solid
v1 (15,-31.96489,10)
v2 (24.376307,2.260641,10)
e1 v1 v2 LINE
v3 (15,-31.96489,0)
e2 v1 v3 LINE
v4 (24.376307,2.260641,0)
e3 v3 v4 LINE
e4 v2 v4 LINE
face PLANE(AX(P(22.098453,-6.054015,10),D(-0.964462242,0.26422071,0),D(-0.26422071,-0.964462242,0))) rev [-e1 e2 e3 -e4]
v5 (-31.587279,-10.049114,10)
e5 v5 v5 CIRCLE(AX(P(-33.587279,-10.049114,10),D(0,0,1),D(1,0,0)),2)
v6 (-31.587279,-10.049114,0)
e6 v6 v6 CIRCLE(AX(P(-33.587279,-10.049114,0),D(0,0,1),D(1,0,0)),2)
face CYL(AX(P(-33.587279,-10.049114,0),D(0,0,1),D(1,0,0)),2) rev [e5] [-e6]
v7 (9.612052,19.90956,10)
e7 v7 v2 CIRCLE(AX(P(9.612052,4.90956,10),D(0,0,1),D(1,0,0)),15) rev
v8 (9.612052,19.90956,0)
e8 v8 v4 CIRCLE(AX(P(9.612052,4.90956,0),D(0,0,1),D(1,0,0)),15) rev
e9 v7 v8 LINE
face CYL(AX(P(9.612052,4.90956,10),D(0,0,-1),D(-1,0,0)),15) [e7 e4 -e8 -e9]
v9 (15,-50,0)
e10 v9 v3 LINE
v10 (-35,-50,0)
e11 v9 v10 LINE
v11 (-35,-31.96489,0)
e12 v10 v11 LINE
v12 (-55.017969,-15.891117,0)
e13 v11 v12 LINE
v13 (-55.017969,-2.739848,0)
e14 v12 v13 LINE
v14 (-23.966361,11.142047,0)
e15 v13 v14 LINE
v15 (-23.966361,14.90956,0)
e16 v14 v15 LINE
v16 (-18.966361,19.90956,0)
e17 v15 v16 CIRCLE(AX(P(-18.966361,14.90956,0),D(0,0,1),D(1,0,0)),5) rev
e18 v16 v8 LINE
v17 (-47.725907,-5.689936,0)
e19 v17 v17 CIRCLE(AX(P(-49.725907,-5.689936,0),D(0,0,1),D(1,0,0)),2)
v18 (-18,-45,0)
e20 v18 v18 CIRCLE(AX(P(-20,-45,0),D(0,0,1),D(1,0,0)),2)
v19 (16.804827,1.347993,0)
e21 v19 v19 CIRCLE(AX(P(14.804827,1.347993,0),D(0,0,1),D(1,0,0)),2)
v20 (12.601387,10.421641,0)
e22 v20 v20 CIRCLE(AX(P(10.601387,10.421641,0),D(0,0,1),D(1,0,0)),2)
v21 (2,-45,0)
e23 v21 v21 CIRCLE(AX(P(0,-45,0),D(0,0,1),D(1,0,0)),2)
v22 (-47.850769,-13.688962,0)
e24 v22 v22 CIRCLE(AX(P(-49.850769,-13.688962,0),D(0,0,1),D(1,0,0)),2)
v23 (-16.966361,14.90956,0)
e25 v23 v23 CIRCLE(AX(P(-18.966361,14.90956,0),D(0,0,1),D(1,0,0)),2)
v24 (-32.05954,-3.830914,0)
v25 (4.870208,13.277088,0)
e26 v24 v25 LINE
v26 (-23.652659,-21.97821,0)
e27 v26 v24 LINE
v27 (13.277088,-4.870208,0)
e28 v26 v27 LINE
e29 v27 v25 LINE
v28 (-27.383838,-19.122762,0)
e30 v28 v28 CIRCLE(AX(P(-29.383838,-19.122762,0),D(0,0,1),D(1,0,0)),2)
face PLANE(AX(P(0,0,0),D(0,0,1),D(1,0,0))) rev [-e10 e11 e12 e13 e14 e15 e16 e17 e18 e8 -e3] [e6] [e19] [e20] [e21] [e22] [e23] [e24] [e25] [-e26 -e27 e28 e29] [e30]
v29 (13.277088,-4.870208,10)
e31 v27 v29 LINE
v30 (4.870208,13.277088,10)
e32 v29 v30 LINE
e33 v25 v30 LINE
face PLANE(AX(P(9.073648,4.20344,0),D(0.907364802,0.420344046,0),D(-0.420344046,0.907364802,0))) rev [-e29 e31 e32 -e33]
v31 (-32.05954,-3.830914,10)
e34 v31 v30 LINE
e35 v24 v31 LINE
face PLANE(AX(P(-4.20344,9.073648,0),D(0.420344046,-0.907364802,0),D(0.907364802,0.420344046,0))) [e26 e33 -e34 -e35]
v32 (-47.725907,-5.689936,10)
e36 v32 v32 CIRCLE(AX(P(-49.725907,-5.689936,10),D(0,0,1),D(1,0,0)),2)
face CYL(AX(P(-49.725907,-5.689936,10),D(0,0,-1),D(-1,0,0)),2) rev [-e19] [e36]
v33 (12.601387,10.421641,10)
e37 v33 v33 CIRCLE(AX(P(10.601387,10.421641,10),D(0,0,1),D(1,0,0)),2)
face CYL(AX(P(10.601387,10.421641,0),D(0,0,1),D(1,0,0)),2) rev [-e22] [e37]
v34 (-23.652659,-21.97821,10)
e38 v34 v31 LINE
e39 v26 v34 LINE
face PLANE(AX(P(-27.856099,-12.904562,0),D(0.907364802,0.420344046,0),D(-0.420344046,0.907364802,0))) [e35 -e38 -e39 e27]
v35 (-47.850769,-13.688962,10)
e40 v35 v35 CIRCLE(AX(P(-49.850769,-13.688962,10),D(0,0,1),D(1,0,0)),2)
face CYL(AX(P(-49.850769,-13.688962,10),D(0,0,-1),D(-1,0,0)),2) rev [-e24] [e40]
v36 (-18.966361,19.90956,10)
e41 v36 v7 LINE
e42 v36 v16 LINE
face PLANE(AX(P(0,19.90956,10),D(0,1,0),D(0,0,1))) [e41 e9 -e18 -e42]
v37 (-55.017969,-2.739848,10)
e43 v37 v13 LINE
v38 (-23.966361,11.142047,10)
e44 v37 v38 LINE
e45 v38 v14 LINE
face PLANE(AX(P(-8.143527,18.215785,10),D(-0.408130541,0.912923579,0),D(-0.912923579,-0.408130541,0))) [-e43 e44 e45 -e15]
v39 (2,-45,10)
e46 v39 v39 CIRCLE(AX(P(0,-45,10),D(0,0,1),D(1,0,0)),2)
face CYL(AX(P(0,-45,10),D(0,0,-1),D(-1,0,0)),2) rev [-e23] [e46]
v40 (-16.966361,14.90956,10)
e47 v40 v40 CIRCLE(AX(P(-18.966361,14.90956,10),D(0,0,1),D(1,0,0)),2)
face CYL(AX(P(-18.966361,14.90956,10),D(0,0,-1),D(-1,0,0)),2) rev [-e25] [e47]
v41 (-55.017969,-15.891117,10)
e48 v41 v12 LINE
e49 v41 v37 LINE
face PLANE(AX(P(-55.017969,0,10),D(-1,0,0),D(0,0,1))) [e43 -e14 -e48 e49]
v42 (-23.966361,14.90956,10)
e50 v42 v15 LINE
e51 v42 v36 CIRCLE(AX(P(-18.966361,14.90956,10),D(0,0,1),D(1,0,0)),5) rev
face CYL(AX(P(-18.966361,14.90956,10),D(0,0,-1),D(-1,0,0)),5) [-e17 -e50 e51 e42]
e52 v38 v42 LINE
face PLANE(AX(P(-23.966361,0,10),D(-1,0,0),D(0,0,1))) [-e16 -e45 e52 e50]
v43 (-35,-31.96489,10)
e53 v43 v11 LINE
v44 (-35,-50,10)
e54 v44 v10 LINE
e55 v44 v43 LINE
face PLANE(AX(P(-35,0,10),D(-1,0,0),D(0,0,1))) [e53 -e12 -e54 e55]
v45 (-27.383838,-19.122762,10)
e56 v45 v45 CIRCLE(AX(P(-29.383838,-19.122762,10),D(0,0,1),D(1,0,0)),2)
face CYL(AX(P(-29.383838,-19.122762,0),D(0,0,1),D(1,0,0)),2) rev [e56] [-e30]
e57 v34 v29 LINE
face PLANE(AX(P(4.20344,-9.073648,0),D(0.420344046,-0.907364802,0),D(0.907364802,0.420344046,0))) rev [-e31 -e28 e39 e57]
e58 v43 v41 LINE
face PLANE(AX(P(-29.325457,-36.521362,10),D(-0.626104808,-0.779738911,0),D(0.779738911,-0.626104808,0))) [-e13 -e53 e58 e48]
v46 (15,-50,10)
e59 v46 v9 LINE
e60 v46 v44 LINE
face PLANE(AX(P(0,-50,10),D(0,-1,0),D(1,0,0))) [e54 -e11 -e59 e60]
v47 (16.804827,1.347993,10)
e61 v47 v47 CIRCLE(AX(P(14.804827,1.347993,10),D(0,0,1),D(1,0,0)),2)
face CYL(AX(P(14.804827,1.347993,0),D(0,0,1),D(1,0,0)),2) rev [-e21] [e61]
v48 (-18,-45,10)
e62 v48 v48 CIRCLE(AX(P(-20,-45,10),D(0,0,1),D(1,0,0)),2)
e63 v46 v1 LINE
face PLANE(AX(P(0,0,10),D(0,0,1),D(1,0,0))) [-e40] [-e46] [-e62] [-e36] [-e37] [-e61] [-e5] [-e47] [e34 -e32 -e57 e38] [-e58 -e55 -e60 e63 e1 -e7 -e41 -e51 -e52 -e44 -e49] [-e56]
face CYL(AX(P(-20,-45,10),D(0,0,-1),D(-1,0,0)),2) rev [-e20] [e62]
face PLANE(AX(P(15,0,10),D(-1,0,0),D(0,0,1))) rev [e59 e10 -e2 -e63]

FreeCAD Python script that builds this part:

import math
import FreeCAD as App
import Part
import Sketcher
Q = App.Units.Quantity

doc = App.newDocument("Part")
body = doc.addObject("PartDesign::Body", "Body")

sketch1 = body.newObject("Sketcher::SketchObject", "Sketch")
sketch1.AttachmentSupport = (doc.getObject("XY_Plane"), [""])
sketch1.MapMode = "FlatFace"
sketch1.addGeometry([
    Part.LineSegment(App.Vector(-35, -50, 0), App.Vector(15, -50, 0)),
    Part.LineSegment(App.Vector(15, -50, 0), App.Vector(15, -32, 0)),
    Part.LineSegment(App.Vector(15, -32, 0), App.Vector(24.4, 2.3, 0)),
    Part.ArcOfCircle(Part.Circle(App.Vector(9.6, 4.9, 0), App.Vector(0, 0, 1), 15), math.radians(-10), math.radians(90)),
    Part.LineSegment(App.Vector(9.6, 19.9, 0), App.Vector(-19, 19.9, 0)),
    Part.ArcOfCircle(Part.Circle(App.Vector(-19, 14.9, 0), App.Vector(0, 0, 1), 5), math.radians(90), math.radians(180)),
    Part.LineSegment(App.Vector(-24, 14.9, 0), App.Vector(-24, 11.1, 0)),
    Part.LineSegment(App.Vector(-24, 11.1, 0), App.Vector(-55, -2.7, 0)),
    Part.LineSegment(App.Vector(-55, -2.7, 0), App.Vector(-55, -15.9, 0)),
    Part.LineSegment(App.Vector(-55, -15.9, 0), App.Vector(-35, -32, 0)),
    Part.LineSegment(App.Vector(-35, -32, 0), App.Vector(-35, -50, 0)),
    Part.Circle(App.Vector(0, -45, 0), App.Vector(0, 0, 1), 2),
    Part.Circle(App.Vector(-20, -45, 0), App.Vector(0, 0, 1), 2),
    Part.Circle(App.Vector(0, 0, 0), App.Vector(0, 0, 1), 2.5),
    Part.Circle(App.Vector(-19, 14.9, 0), App.Vector(0, 0, 1), 2),
    Part.Circle(App.Vector(-49.9, -13.7, 0), App.Vector(0, 0, 1), 2),
    Part.Circle(App.Vector(-49.7, -5.7, 0), App.Vector(0, 0, 1), 2),
], False)
sketch1.addConstraint([
    Sketcher.Constraint("Coincident", 0, 2, 1, 1),
    Sketcher.Constraint("Coincident", 1, 2, 2, 1),
    Sketcher.Constraint("Coincident", 2, 2, 3, 1),
    Sketcher.Constraint("Tangent", 3, 2, 4, 1),
    Sketcher.Constraint("Tangent", 4, 2, 5, 1),
    Sketcher.Constraint("Tangent", 5, 2, 6, 1),
    Sketcher.Constraint("Coincident", 6, 2, 7, 1),
    Sketcher.Constraint("Coincident", 7, 2, 8, 1),
    Sketcher.Constraint("Coincident", 8, 2, 9, 1),
    Sketcher.Constraint("Coincident", 9, 2, 10, 1),
    Sketcher.Constraint("Coincident", 10, 2, 0, 1),
    Sketcher.Constraint("Horizontal", 0),
    Sketcher.Constraint("Vertical", 1),
    Sketcher.Constraint("Horizontal", 4),
    Sketcher.Constraint("Vertical", 6),
    Sketcher.Constraint("Vertical", 8),
    Sketcher.Constraint("Vertical", 10),
    Sketcher.Constraint("Coincident", 13, 3, -1, 1),
    Sketcher.Constraint("Coincident", 14, 3, 5, 3),
    Sketcher.Constraint("Equal", 11, 12),
    Sketcher.Constraint("Equal", 12, 14),
    Sketcher.Constraint("Equal", 14, 15),
    Sketcher.Constraint("Equal", 15, 16),
    Sketcher.Constraint("PointOnObject", 11, 3, -2),
    Sketcher.Constraint("Horizontal", 11, 3, 12, 3),
    Sketcher.Constraint("Horizontal", 1, 2, 9, 2),
    Sketcher.Constraint("Diameter", 11, Q("4 mm")),
    Sketcher.Constraint("Diameter", 13, Q("5 mm")),
    Sketcher.Constraint("Radius", 3, Q("15 mm")),
    Sketcher.Constraint("Radius", 5, Q("5 mm")),
    Sketcher.Constraint("DistanceX", 0, 1, 0, 2, Q("50 mm")),
    Sketcher.Constraint("DistanceY", 11, 3, -1, 1, Q("45 mm")),
    Sketcher.Constraint("DistanceX", 12, 3, -1, 1, Q("20 mm")),
    Sketcher.Constraint("DistanceX", -1, 1, 0, 2, Q("15 mm")),
    Sketcher.Constraint("DistanceY", 0, 2, -1, 1, Q("50 mm")),
    Sketcher.Constraint("DistanceY", 1, 1, 1, 2, Q("18.03511 mm")),
    Sketcher.Constraint("DistanceY", 8, 2, 8, 1, Q("13.151269 mm")),
    Sketcher.Constraint("DistanceX", 7, 2, 15, 3, Q("5.1672 mm")),
    Sketcher.Constraint("Distance", 7, Q("34.01337 mm")),
    Sketcher.Constraint("DistanceX", 4, 2, 4, 1, Q("28.578413 mm")),
    Sketcher.Constraint("DistanceY", 6, 2, 6, 1, Q("3.767513 mm")),
    Sketcher.Constraint("DistanceY", -1, 1, 3, 3, Q("4.90956 mm")),
    Sketcher.Constraint("DistanceX", 5, 3, -1, 1, Q("18.966361 mm")),
    Sketcher.Constraint("DistanceX", 15, 3, -1, 1, Q("49.850769 mm")),
    Sketcher.Constraint("DistanceY", 15, 3, -1, 1, Q("13.688962 mm")),
    Sketcher.Constraint("DistanceY", -1, 1, 2, 2, Q("2.260641 mm")),
    Sketcher.Constraint("DistanceX", 15, 3, 16, 3, Q("0.124862 mm")),
    Sketcher.Constraint("DistanceY", 16, 3, 7, 2, Q("2.950088 mm")),
])
pad1 = body.newObject("PartDesign::Pad", "Pad")
pad1.Profile = sketch1
pad1.Length = 10

sketch2 = body.newObject("Sketcher::SketchObject", "Sketch001")
sketch2.AttachmentSupport = (doc.getObject("XY_Plane"), [""])
sketch2.MapMode = "FlatFace"
sketch2.AttachmentOffset = App.Placement(App.Vector(0, 0, 10), App.Rotation())
sketch2.addGeometry([
    Part.LineSegment(App.Vector(9.1, 4.2, 0), App.Vector(4.9, 13.3, 0)),
    Part.LineSegment(App.Vector(4.9, 13.3, 0), App.Vector(-32.1, -3.8, 0)),
    Part.LineSegment(App.Vector(-32.1, -3.8, 0), App.Vector(-27.9, -12.9, 0)),
    Part.LineSegment(App.Vector(-27.9, -12.9, 0), App.Vector(-23.7, -22, 0)),
    Part.LineSegment(App.Vector(-23.7, -22, 0), App.Vector(13.3, -4.9, 0)),
    Part.LineSegment(App.Vector(13.3, -4.9, 0), App.Vector(9.1, 4.2, 0)),
    Part.ArcOfCircle(Part.Circle(App.Vector(0, 0, 0), App.Vector(0, 0, 1), 2.5), math.radians(25), math.radians(205)),
    Part.ArcOfCircle(Part.Circle(App.Vector(0, 0, 0), App.Vector(0, 0, 1), 2.5), math.radians(0), math.radians(25)),
    Part.ArcOfCircle(Part.Circle(App.Vector(0, 0, 0), App.Vector(0, 0, 1), 2.5), math.radians(-155), math.radians(0)),
], False)
sketch2.addConstraint([
    Sketcher.Constraint("Coincident", 0, 2, 1, 1),
    Sketcher.Constraint("Coincident", 1, 2, 2, 1),
    Sketcher.Constraint("Coincident", 2, 2, 3, 1),
    Sketcher.Constraint("Coincident", 3, 2, 4, 1),
    Sketcher.Constraint("Coincident", 4, 2, 5, 1),
    Sketcher.Constraint("Coincident", 5, 2, 0, 1),
    Sketcher.Constraint("Tangent", 6, 1, 7, 2),
    Sketcher.Constraint("Tangent", 7, 1, 8, 2),
    Sketcher.Constraint("Tangent", 8, 1, 6, 2),
    Sketcher.Constraint("Coincident", 6, 3, -1, 1),
    Sketcher.Constraint("PointOnObject", 7, 1, -1),
    Sketcher.Constraint("Perpendicular", 0, 1),
    Sketcher.Constraint("Perpendicular", 1, 2),
    Sketcher.Constraint("Parallel", 2, 3),
    Sketcher.Constraint("Perpendicular", 3, 4),
    Sketcher.Constraint("Perpendicular", 4, 5),
    Sketcher.Constraint("Equal", 0, 2),
    Sketcher.Constraint("Equal", 2, 3),
    Sketcher.Constraint("Radius", 6, Q("2.5 mm")),
    Sketcher.Constraint("Distance", 0, Q("10 mm")),
    Sketcher.Constraint("Distance", 1, Q("40.7 mm")),
    Sketcher.Constraint("DistanceX", 2, 2, -1, 1, Q("27.856099 mm")),
    Sketcher.Constraint("DistanceY", -1, 1, 0, 2, Q("13.277088 mm")),
    Sketcher.Constraint("DistanceX", 1, 2, -1, 1, Q("32.05954 mm")),
    Sketcher.Constraint("DistanceY", -1, 1, 6, 1, Q("1.05086 mm")),
    Sketcher.Constraint("DistanceY", 8, 1, -1, 1, Q("1.05086 mm")),
])
pocket1 = body.newObject("PartDesign::Pocket", "Pocket")
pocket1.Profile = sketch2
pocket1.Type = "ThroughAll"

sketch3 = body.newObject("Sketcher::SketchObject", "Sketch002")
sketch3.AttachmentSupport = (doc.getObject("XY_Plane"), [""])
sketch3.MapMode = "FlatFace"
sketch3.AttachmentOffset = App.Placement(App.Vector(0, 0, 10), App.Rotation())
sketch3.addGeometry([
    Part.Circle(App.Vector(10.6, 10.4, 0), App.Vector(0, 0, 1), 2),
    Part.Circle(App.Vector(14.8, 1.3, 0), App.Vector(0, 0, 1), 2),
    Part.Circle(App.Vector(-29.4, -19.1, 0), App.Vector(0, 0, 1), 2),
    Part.Circle(App.Vector(-33.6, -10, 0), App.Vector(0, 0, 1), 2),
], False)
sketch3.addConstraint([
    Sketcher.Constraint("Equal", 0, 1),
    Sketcher.Constraint("Equal", 1, 2),
    Sketcher.Constraint("Equal", 2, 3),
    Sketcher.Constraint("Diameter", 0, Q("4 mm")),
    Sketcher.Constraint("DistanceY", -1, 1, 0, 3, Q("10.421641 mm")),
    Sketcher.Constraint("DistanceX", 2, 3, -1, 1, Q("29.383838 mm")),
    Sketcher.Constraint("DistanceX", 3, 3, -1, 1, Q("33.587279 mm")),
    Sketcher.Constraint("DistanceX", 0, 3, 1, 3, Q("4.20344 mm")),
    Sketcher.Constraint("DistanceY", 1, 3, 0, 3, Q("9.073648 mm")),
    Sketcher.Constraint("DistanceY", 2, 3, 3, 3, Q("9.073648 mm")),
    Sketcher.Constraint("DistanceX", -1, 1, 0, 3, Q("10.601387 mm")),
    Sketcher.Constraint("DistanceY", 2, 3, -1, 1, Q("19.122762 mm")),
])
pocket2 = body.newObject("PartDesign::Pocket", "Pocket001")
pocket2.Profile = sketch3
pocket2.Type = "ThroughAll"

doc.recompute()
